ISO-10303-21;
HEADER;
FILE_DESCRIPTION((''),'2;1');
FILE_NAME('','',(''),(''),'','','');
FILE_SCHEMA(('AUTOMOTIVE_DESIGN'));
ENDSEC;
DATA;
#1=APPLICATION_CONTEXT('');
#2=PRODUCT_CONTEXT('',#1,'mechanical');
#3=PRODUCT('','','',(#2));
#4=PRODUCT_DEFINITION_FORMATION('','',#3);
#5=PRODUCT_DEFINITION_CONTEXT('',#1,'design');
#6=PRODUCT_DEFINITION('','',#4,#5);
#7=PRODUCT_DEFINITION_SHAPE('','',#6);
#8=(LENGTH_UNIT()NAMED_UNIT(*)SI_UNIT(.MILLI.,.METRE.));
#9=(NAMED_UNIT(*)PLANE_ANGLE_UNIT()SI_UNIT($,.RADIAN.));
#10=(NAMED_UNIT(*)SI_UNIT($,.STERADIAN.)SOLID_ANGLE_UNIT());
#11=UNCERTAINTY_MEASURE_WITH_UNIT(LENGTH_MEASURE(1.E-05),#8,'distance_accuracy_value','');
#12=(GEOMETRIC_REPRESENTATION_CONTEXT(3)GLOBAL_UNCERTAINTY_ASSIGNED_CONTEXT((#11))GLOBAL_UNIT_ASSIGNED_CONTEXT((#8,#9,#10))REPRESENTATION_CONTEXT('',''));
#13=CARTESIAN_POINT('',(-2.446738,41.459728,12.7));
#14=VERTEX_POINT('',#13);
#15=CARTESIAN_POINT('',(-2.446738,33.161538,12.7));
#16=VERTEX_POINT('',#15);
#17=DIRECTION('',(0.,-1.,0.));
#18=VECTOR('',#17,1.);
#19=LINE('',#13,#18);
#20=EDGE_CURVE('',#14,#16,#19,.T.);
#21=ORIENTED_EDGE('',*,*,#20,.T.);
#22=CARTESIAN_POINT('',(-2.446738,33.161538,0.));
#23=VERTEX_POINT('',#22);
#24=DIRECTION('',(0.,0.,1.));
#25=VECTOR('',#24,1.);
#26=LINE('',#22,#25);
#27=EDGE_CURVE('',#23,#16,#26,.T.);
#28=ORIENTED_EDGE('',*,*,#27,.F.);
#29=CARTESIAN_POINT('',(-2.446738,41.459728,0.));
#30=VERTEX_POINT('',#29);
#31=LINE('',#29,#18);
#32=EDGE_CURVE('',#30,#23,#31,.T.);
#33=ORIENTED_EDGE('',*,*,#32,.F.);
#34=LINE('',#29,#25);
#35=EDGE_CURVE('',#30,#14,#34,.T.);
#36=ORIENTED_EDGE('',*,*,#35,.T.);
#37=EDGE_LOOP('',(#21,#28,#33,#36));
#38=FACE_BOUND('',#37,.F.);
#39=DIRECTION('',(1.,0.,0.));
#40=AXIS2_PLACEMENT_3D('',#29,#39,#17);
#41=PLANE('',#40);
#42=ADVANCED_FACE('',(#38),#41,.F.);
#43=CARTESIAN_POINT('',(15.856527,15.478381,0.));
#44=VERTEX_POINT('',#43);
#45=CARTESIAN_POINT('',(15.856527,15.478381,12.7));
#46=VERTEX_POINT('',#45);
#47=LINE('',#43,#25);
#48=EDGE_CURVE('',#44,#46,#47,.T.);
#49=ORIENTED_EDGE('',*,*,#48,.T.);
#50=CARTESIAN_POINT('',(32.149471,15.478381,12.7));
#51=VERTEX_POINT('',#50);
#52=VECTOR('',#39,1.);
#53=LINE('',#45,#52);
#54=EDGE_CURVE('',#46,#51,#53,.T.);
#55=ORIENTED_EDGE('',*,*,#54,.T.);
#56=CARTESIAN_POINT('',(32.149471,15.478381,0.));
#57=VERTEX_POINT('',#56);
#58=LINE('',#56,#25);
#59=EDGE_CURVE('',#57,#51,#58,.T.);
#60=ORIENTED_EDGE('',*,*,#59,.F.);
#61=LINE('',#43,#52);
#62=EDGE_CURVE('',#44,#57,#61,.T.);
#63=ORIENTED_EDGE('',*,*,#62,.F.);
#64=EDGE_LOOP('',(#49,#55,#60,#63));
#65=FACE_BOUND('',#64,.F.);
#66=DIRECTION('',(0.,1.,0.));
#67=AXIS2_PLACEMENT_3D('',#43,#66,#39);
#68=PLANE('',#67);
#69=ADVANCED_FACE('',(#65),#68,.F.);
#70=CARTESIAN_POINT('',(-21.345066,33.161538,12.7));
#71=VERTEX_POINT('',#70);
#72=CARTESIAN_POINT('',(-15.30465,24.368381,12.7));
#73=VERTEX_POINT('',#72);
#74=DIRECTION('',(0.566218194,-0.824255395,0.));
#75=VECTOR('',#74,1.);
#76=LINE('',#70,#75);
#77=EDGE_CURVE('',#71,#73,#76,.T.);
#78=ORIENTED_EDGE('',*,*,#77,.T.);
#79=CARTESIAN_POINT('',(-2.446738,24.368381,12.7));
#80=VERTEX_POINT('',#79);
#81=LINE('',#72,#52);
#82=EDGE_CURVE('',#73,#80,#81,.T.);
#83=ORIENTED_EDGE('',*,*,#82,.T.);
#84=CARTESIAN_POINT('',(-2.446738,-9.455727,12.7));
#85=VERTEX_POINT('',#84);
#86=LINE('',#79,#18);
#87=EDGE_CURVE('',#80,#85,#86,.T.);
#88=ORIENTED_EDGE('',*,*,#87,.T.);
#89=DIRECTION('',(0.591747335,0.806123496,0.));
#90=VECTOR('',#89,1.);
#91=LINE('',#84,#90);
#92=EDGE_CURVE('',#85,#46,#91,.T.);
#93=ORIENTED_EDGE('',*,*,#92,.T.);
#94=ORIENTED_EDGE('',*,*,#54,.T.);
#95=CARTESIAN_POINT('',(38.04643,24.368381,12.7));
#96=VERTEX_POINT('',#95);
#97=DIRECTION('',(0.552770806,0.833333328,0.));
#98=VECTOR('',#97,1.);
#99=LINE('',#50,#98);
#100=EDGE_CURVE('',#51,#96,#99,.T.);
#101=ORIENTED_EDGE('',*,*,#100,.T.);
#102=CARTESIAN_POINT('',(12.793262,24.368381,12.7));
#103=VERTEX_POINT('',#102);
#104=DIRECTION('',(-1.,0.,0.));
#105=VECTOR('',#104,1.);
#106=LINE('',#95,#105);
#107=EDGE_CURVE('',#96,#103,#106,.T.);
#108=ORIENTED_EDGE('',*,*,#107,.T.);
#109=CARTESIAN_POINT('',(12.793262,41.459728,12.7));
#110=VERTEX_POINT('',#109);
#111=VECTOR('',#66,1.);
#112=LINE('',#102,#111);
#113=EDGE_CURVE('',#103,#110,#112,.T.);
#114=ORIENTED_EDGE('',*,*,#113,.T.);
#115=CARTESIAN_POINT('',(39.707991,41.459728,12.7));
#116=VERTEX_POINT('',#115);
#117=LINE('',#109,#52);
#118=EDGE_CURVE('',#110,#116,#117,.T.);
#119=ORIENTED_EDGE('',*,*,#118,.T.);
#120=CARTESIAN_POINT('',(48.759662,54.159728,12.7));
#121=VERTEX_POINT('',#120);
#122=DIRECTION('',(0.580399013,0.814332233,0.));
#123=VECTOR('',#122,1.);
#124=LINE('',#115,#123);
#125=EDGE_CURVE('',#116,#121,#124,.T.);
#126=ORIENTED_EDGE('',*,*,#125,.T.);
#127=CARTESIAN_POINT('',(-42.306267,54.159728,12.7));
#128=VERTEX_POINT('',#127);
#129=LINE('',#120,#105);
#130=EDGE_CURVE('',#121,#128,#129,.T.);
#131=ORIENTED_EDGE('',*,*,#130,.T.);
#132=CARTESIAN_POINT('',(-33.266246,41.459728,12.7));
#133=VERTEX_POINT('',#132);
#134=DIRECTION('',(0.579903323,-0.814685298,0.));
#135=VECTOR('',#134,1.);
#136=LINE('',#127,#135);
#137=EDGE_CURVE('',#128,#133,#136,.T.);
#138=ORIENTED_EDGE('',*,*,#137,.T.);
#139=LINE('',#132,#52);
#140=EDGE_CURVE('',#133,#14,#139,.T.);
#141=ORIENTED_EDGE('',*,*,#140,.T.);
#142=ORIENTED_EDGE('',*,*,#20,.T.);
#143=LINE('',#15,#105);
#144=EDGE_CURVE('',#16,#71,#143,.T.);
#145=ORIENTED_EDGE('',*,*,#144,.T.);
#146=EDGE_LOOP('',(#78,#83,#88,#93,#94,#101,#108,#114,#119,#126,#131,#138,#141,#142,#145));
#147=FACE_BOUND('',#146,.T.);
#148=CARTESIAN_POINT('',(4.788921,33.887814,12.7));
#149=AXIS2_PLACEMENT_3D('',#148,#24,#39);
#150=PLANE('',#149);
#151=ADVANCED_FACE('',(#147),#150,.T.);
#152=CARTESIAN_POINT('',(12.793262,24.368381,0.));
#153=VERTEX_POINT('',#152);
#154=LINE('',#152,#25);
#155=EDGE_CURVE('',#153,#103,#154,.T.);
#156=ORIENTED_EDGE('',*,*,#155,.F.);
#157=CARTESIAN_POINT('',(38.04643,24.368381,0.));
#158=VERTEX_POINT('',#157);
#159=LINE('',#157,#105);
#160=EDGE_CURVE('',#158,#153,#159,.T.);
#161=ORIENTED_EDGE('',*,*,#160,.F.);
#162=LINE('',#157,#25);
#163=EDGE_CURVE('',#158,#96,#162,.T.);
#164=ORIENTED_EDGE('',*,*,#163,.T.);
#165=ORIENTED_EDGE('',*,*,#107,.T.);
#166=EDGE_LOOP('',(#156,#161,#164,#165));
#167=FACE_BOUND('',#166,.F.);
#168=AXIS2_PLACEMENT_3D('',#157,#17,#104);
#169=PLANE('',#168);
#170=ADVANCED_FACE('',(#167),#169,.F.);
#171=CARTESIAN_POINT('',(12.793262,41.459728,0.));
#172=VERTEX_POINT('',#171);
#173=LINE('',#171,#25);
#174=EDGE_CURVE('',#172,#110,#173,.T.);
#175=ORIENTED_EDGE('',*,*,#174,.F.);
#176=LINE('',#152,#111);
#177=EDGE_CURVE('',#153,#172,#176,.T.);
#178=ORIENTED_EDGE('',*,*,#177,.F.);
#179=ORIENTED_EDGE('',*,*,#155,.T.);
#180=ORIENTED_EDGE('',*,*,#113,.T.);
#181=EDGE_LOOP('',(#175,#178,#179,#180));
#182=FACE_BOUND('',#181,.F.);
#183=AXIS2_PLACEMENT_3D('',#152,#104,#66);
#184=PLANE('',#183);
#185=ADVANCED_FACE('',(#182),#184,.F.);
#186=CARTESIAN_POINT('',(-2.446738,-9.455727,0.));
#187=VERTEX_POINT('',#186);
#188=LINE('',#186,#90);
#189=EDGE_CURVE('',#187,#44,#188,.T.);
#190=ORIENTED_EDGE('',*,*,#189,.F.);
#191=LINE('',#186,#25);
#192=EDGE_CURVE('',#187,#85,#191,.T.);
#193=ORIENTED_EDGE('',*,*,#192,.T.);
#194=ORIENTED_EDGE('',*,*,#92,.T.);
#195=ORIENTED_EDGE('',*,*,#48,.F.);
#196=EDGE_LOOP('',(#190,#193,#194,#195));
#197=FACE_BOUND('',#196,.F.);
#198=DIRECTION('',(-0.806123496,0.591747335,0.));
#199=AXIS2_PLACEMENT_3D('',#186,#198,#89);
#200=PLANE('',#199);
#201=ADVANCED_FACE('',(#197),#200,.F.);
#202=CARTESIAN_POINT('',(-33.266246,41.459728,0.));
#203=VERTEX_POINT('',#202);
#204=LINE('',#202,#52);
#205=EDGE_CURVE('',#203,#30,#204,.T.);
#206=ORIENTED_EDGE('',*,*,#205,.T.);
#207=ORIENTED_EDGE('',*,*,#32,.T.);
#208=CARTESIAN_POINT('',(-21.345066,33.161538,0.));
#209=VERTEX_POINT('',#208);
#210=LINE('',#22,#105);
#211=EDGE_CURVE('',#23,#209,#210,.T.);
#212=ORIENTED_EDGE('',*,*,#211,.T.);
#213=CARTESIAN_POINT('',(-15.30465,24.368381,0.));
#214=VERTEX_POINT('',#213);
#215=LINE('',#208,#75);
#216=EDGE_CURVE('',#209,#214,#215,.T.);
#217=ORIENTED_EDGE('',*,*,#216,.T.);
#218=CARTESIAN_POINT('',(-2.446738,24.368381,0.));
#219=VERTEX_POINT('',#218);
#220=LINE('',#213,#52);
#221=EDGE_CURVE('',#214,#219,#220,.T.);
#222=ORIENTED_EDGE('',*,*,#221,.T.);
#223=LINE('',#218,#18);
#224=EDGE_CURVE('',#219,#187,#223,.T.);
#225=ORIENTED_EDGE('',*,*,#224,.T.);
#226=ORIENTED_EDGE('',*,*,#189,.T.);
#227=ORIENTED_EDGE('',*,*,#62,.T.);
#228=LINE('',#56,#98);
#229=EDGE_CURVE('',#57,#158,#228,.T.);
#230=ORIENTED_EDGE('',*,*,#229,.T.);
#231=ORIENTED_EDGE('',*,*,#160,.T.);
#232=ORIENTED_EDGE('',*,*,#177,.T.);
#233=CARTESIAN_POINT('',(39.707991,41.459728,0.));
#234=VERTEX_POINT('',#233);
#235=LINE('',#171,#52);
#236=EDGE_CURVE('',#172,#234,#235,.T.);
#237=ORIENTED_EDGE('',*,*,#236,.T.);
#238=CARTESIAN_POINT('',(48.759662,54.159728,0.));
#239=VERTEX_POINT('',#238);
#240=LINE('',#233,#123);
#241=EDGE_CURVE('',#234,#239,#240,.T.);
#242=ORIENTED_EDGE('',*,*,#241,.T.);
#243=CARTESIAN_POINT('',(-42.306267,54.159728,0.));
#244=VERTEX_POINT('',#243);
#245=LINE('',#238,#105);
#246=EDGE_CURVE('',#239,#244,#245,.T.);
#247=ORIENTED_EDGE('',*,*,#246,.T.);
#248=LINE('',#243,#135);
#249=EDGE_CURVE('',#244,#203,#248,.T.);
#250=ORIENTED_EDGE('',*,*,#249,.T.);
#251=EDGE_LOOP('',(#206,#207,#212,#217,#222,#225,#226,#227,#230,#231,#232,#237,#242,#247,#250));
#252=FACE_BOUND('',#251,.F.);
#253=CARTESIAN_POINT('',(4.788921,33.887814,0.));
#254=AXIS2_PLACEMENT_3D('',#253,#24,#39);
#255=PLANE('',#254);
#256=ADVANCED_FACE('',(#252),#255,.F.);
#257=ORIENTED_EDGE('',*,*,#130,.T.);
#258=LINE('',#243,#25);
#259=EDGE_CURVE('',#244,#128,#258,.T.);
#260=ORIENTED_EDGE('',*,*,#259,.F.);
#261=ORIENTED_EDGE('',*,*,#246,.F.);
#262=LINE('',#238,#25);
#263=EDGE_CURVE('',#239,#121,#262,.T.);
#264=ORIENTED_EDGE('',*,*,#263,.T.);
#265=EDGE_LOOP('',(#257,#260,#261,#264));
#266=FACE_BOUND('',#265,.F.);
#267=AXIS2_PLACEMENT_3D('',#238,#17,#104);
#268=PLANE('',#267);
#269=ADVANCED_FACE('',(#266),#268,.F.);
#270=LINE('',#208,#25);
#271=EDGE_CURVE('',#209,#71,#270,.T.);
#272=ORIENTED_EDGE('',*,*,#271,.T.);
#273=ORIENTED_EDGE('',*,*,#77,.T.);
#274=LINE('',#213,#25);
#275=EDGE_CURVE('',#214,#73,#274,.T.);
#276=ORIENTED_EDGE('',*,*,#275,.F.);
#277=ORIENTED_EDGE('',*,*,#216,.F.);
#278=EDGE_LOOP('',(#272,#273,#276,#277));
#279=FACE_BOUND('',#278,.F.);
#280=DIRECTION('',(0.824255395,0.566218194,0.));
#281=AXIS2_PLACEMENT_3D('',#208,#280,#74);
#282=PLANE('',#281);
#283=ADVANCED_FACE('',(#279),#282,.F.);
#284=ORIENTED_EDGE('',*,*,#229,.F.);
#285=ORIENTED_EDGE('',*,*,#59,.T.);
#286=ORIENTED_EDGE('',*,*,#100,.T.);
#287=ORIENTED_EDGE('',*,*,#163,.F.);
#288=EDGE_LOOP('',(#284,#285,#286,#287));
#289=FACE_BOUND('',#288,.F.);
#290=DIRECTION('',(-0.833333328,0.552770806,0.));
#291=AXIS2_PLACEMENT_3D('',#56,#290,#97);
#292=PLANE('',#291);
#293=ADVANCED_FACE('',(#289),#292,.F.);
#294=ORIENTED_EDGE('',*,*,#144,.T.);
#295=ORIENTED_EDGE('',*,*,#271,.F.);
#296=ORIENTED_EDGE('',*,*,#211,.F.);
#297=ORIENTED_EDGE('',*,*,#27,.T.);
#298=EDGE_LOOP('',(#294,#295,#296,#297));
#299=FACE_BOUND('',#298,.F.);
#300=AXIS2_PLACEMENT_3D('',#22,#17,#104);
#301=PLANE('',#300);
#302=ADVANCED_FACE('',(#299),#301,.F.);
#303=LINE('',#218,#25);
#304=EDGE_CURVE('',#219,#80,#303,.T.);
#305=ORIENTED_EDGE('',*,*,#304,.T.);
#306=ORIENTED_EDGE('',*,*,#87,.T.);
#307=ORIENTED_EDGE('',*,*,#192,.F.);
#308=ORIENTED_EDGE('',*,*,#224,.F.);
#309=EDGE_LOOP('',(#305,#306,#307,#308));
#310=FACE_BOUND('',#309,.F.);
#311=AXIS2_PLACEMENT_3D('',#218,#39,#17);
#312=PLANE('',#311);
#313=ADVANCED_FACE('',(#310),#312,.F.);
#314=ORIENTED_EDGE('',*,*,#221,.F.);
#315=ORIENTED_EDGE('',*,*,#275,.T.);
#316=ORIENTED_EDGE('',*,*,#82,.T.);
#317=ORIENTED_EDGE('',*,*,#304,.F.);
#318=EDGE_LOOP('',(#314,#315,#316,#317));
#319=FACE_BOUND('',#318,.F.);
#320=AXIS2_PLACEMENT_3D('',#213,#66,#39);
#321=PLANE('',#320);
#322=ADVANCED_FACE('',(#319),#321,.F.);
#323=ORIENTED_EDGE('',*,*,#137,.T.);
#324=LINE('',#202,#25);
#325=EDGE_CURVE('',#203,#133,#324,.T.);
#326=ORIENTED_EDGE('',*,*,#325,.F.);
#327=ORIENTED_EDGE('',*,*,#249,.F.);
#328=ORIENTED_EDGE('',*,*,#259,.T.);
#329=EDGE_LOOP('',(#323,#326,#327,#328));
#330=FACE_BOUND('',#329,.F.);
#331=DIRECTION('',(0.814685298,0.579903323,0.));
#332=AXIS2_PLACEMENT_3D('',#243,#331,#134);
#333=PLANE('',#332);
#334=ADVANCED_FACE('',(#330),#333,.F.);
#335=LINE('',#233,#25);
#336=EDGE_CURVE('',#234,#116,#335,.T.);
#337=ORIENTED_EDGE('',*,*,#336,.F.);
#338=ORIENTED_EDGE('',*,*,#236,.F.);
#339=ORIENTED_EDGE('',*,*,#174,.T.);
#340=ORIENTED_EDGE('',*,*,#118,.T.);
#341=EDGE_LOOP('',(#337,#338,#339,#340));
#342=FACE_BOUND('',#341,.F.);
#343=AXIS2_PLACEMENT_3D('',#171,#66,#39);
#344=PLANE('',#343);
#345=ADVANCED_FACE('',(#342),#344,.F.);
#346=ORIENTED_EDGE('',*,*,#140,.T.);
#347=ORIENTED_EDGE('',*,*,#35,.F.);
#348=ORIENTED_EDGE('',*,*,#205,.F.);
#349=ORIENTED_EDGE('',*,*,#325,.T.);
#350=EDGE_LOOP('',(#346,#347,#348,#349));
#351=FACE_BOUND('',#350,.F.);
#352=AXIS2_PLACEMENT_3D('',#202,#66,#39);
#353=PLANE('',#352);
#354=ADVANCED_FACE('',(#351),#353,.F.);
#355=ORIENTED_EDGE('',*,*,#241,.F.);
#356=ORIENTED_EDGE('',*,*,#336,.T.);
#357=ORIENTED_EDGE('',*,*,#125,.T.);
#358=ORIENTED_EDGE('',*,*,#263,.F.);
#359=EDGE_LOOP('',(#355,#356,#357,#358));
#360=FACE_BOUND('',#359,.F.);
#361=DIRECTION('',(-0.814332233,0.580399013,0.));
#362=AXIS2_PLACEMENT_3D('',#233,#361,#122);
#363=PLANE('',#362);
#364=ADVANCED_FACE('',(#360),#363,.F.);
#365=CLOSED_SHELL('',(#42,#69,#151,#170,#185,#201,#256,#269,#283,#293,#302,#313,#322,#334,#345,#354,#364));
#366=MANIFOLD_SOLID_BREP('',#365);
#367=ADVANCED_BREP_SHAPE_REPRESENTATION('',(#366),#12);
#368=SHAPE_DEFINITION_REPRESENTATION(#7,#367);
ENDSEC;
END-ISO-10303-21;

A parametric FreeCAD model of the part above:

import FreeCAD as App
import Part
import Sketcher
Q = App.Units.Quantity


def add_polygon(sketch, points):
    """Adds a closed chain of lines whose ends are joined by coincident constraints."""
    first, n = sketch.GeometryCount, len(points)
    for a, b in zip(points, points[1:] + points[:1]):
        sketch.addGeometry(Part.LineSegment(App.Vector(*a, 0), App.Vector(*b, 0)), False)
    for i in range(n):
        sketch.addConstraint(Sketcher.Constraint("Coincident", first + i, 2, first + (i + 1) % n, 1))

doc = App.newDocument("Part")
body = doc.addObject("PartDesign::Body", "Body")

# Sketch on XY plane
sketch1 = body.newObject("Sketcher::SketchObject", "Sketch")
sketch1.AttachmentSupport = (doc.getObject("XY_Plane"), [""])
sketch1.MapMode = "FlatFace"
add_polygon(sketch1, [(48.759662, 54.159728), (-42.306267, 54.159728), (-33.266246, 41.459728), (-2.446738, 41.459728), (-2.446738, 33.161538), (-21.345066, 33.161538), (-15.30465, 24.368381), (-2.446738, 24.368381), (-2.446738, -9.455727), (15.856527, 15.478381), (32.149471, 15.478381), (38.04643, 24.368381), (12.793262, 24.368381), (12.793262, 41.459728), (39.707991, 41.459728)])  # lines 0-14
sketch1.addConstraint(Sketcher.Constraint("Horizontal", 0))
sketch1.addConstraint(Sketcher.Constraint("Horizontal", 2))
sketch1.addConstraint(Sketcher.Constraint("Vertical", 3))
sketch1.addConstraint(Sketcher.Constraint("Horizontal", 4))
sketch1.addConstraint(Sketcher.Constraint("Horizontal", 6))
sketch1.addConstraint(Sketcher.Constraint("Vertical", 7))
sketch1.addConstraint(Sketcher.Constraint("Horizontal", 9))
sketch1.addConstraint(Sketcher.Constraint("Horizontal", 11))
sketch1.addConstraint(Sketcher.Constraint("Vertical", 12))
sketch1.addConstraint(Sketcher.Constraint("Horizontal", 13))
sketch1.addConstraint(Sketcher.Constraint("Horizontal", 6, 2, 10, 2))
sketch1.addConstraint(Sketcher.Constraint("Horizontal", 2, 2, 12, 2))
sketch1.addConstraint(Sketcher.Constraint("Vertical", 3, 2, 6, 2))
sketch1.addConstraint(Sketcher.Constraint("Equal", 5, 10))
sketch1.addConstraint(Sketcher.Constraint("DistanceY", 1, 2, 0, 2, Q("0.5 in")))
sketch1.addConstraint(Sketcher.Constraint("DistanceX", 6, 2, 11, 2, Q("0.6 in")))
sketch1.addConstraint(Sketcher.Constraint("Distance", 5, Q("0.42 in")))
sketch1.addConstraint(Sketcher.Constraint("DistanceY", 8, 2, 6, 2, Q("0.35 in")))
sketch1.addConstraint(Sketcher.Constraint("Distance", 14, Q("0.614 in")))
sketch1.addConstraint(Sketcher.Constraint("DistanceX", 12, 2, 14, 2, Q("1.416 in")))
sketch1.addConstraint(Sketcher.Constraint("DistanceX", 0, 2, 0, 1, Q("91.065929 mm")))
sketch1.addConstraint(Sketcher.Constraint("DistanceX", 2, 1, 2, 2, Q("30.819508 mm")))
sketch1.addConstraint(Sketcher.Constraint("DistanceX", 11, 2, 11, 1, Q("25.253168 mm")))
sketch1.addConstraint(Sketcher.Constraint("DistanceY", 3, 2, 3, 1, Q("8.29819 mm")))
sketch1.addConstraint(Sketcher.Constraint("DistanceX", 0, 2, 4, 2, Q("20.961201 mm")))
sketch1.addConstraint(Sketcher.Constraint("Distance", 8, Q("30.930879 mm")))
sketch1.addConstraint(Sketcher.Constraint("DistanceX", 6, 1, 6, 2, Q("12.857912 mm")))
sketch1.addConstraint(Sketcher.Constraint("DistanceX", 9, 1, 9, 2, Q("16.292944 mm")))
sketch1.addConstraint(Sketcher.Constraint("DistanceX", 5, 2, -1, 1, Q("15.30465 mm")))
sketch1.addConstraint(Sketcher.Constraint("DistanceY", -1, 1, 5, 2, Q("24.368381 mm")))
pad1 = body.newObject("PartDesign::Pad", "Pad")
pad1.Profile = sketch1
pad1.Length = Q("0.5 in")

doc.recompute()
